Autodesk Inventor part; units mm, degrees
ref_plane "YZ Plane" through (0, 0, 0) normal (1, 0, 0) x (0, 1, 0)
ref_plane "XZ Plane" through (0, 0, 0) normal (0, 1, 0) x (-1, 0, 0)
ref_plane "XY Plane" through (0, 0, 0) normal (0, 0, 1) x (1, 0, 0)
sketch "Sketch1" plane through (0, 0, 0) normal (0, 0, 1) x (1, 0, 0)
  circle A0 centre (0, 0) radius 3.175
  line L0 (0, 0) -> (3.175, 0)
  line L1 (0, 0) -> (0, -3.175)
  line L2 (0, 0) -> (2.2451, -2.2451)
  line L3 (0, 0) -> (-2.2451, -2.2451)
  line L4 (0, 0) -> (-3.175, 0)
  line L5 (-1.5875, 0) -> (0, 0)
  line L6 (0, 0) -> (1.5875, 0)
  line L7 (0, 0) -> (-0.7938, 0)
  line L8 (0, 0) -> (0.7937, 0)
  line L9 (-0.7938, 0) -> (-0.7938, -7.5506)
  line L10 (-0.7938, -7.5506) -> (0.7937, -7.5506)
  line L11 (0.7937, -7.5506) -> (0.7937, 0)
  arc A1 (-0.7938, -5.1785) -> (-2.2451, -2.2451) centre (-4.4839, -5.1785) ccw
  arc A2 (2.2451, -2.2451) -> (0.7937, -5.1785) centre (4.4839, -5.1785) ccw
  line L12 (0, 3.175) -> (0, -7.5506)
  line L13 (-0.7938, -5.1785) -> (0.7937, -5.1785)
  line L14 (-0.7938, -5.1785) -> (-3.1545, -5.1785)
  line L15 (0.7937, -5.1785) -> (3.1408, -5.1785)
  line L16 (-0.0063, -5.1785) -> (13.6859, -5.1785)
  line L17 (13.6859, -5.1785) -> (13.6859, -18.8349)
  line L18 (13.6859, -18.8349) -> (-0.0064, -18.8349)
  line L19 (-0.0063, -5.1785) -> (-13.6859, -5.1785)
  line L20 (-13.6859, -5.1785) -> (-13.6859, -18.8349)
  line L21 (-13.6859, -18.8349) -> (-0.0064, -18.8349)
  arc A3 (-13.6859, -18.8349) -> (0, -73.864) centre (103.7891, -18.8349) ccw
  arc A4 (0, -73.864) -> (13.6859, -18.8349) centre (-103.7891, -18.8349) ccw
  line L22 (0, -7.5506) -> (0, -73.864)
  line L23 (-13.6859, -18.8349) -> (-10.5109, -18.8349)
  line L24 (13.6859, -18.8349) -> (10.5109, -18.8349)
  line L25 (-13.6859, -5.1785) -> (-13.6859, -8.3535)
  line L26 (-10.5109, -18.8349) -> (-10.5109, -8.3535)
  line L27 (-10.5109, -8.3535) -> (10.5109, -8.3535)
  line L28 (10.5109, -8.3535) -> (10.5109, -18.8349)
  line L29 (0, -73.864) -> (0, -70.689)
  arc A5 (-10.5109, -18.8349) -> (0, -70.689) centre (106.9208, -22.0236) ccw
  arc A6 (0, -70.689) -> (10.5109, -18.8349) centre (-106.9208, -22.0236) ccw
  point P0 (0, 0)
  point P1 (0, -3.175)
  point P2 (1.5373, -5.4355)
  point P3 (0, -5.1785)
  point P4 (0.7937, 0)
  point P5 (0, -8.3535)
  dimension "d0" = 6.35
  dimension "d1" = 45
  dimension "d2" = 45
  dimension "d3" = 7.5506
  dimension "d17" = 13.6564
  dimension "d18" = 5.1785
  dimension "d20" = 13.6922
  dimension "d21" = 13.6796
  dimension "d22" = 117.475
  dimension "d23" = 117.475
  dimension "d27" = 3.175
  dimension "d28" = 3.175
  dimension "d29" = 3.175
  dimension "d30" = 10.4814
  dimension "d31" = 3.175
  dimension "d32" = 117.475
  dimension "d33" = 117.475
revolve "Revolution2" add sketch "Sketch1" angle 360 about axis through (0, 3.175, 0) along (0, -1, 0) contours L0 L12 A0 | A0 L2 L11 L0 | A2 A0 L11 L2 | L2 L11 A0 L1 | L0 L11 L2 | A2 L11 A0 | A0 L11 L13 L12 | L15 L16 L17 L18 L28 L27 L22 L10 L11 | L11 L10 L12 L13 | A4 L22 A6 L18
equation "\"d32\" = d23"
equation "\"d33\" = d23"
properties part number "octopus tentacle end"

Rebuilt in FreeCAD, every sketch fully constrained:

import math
import FreeCAD as App
import Part
import Sketcher
from FreeCAD import Vector
Q = App.Units.Quantity

doc = App.newDocument("Part")
body = doc.addObject("PartDesign::Body", "Body")

sketch1 = doc.addObject("Sketcher::SketchObject", "Sketch")
body.addObject(sketch1)
sketch1.AttachmentSupport = (doc.XY_Plane, [""])
sketch1.MapMode = "FlatFace"
sketch1.addGeometry([
    Part.LineSegment(Vector(0, 3.2, 0), Vector(0, -8.4, 0)),
    Part.LineSegment(Vector(0, -8.4, 0), Vector(10.5, -8.4, 0)),
    Part.LineSegment(Vector(10.5, -8.4, 0), Vector(10.5, -18.8, 0)),
    Part.ArcOfCircle(Part.Circle(Vector(-106.9, -22, 0), Vector(0, 0, 1), 117.5), math.radians(-24), math.radians(2)),
    Part.LineSegment(Vector(0, -70.7, 0), Vector(0, -73.9, 0)),
    Part.ArcOfCircle(Part.Circle(Vector(-103.8, -18.8, 0), Vector(0, 0, 1), 117.5), math.radians(-28), math.radians(0)),
    Part.LineSegment(Vector(13.7, -18.8, 0), Vector(13.7, -5.2, 0)),
    Part.LineSegment(Vector(13.7, -5.2, 0), Vector(0.8, -5.2, 0)),
    Part.ArcOfCircle(Part.Circle(Vector(4.5, -5.2, 0), Vector(0, 0, 1), 3.7), math.radians(127), math.radians(180)),
    Part.ArcOfCircle(Part.Circle(Vector(0, 0, 0), Vector(0, 0, 1), 3.2), math.radians(-45), math.radians(90)),
], False)
sketch1.addConstraint([
    Sketcher.Constraint("Coincident", 0, 2, 1, 1),
    Sketcher.Constraint("Coincident", 1, 2, 2, 1),
    Sketcher.Constraint("Coincident", 2, 2, 3, 2),
    Sketcher.Constraint("Coincident", 3, 1, 4, 1),
    Sketcher.Constraint("Coincident", 4, 2, 5, 1),
    Sketcher.Constraint("Tangent", 5, 2, 6, 1),
    Sketcher.Constraint("Coincident", 6, 2, 7, 1),
    Sketcher.Constraint("Coincident", 7, 2, 8, 2),
    Sketcher.Constraint("Coincident", 8, 1, 9, 1),
    Sketcher.Constraint("Coincident", 9, 2, 0, 1),
    Sketcher.Constraint("Vertical", 0),
    Sketcher.Constraint("Horizontal", 1),
    Sketcher.Constraint("Vertical", 2),
    Sketcher.Constraint("Vertical", 4),
    Sketcher.Constraint("Vertical", 6),
    Sketcher.Constraint("Horizontal", 7),
    Sketcher.Constraint("Coincident", 9, 3, -1, 1),
    Sketcher.Constraint("Equal", 3, 5),
    Sketcher.Constraint("PointOnObject", 0, 2, -2),
    Sketcher.Constraint("PointOnObject", 3, 1, -2),
    Sketcher.Constraint("Horizontal", 5, 3, 2, 2),
    Sketcher.Constraint("Horizontal", 8, 3, 6, 2),
    Sketcher.Constraint("Radius", 3, Q("4.625 in")),
    Sketcher.Constraint("Radius", 9, Q("0.125 in")),
    Sketcher.Constraint("DistanceY", 4, 2, 4, 1, Q("0.125 in")),
    Sketcher.Constraint("DistanceY", 0, 2, 8, 3, Q("0.125 in")),
    Sketcher.Constraint("DistanceX", 2, 2, 5, 2, Q("0.125 in")),
    Sketcher.Constraint("DistanceY", 2, 2, 2, 1, 10.4814),
    Sketcher.Constraint("DistanceY", 8, 3, -1, 1, 5.1785),
    Sketcher.Constraint("Radius", 8, 3.6901),
    Sketcher.Constraint("DistanceX", -1, 1, 7, 2, Q("0.031248 in")),
    Sketcher.Constraint("DistanceX", 3, 3, 8, 3, Q("4.386 in")),
])
revolution = doc.addObject("PartDesign::Revolution", "Revolution")
body.addObject(revolution)
revolution.Profile = sketch1
revolution.ReferenceAxis = (sketch1, ["V_Axis"])
revolution.Angle = 360

doc.recompute()
